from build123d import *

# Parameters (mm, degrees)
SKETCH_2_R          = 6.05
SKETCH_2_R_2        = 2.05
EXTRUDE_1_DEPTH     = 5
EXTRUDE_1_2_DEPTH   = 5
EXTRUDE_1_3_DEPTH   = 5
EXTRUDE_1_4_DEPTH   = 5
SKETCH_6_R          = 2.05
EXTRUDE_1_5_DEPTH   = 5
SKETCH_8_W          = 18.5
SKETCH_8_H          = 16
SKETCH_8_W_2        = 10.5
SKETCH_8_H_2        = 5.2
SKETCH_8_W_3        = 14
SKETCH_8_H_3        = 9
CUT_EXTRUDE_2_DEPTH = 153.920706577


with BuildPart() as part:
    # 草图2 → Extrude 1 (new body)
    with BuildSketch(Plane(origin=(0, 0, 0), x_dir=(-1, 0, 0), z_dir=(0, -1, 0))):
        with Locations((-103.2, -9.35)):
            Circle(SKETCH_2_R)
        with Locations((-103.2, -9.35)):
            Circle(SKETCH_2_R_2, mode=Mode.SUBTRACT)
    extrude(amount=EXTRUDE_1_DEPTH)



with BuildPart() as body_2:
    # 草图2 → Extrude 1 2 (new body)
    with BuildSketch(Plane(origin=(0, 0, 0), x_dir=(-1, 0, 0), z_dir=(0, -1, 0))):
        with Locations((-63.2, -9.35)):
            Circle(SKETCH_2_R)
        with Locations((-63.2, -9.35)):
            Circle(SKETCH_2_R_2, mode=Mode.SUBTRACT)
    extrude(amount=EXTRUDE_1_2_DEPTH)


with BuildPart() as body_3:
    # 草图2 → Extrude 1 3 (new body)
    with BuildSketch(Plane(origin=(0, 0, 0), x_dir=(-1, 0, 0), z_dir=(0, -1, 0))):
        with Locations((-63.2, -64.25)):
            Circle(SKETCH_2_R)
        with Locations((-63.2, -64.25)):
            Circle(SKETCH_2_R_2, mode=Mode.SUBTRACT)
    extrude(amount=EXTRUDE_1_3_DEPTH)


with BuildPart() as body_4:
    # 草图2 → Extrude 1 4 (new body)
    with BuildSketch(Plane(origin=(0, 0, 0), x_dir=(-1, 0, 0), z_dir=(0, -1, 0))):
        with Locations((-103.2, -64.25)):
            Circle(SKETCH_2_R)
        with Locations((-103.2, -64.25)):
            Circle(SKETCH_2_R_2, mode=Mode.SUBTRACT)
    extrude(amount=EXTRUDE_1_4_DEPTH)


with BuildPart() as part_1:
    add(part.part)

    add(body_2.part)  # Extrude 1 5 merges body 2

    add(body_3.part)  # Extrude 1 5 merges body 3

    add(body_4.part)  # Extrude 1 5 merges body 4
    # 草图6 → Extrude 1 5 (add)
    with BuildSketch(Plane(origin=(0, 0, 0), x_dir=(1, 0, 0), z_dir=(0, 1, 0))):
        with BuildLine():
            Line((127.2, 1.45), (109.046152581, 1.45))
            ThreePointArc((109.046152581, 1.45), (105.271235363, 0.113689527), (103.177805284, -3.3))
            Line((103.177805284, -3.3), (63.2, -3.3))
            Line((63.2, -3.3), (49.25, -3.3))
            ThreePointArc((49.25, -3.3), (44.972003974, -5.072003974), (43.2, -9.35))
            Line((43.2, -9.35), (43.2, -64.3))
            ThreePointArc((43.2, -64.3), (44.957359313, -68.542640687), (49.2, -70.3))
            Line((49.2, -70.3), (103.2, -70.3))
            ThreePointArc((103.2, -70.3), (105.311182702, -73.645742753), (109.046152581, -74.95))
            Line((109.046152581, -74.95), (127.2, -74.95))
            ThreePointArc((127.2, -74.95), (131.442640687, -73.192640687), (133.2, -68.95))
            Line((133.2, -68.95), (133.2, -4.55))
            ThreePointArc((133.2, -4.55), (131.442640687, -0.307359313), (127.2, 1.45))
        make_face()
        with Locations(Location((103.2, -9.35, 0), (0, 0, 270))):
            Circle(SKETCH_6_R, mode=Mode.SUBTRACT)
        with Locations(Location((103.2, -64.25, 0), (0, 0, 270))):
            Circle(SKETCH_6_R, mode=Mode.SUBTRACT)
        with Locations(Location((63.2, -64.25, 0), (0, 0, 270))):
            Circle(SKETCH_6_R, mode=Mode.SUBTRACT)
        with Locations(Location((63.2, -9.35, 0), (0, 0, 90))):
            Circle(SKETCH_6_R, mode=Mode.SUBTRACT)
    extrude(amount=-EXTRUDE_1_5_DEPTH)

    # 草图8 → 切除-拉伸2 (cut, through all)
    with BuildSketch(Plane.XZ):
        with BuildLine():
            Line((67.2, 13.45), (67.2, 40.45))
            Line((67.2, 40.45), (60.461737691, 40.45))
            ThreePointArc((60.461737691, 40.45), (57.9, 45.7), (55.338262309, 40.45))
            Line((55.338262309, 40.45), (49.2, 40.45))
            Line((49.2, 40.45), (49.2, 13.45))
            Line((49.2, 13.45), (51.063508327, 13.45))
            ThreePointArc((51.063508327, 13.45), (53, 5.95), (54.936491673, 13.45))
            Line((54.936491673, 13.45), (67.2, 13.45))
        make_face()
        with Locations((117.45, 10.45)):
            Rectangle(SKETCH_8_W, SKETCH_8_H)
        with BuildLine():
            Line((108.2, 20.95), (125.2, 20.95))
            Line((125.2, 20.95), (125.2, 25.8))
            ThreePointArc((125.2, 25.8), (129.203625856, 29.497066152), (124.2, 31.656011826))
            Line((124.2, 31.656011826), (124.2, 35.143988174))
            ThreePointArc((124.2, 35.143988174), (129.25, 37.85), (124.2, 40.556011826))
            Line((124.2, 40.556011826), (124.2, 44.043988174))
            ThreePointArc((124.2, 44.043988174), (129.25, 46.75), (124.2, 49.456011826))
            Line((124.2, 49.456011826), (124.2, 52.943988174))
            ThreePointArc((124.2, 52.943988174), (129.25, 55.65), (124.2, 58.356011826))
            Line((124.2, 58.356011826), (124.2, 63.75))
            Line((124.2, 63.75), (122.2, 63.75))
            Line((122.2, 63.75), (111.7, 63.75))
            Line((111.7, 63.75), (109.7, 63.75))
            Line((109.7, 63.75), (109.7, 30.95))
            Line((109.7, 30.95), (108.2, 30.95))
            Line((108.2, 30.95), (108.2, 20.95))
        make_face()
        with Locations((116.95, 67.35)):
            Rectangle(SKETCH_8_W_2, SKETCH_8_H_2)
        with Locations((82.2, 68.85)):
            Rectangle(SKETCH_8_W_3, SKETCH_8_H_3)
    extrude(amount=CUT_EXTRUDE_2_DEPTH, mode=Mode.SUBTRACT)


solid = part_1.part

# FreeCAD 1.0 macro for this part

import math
import FreeCAD as App
import Part
import Sketcher
from FreeCAD import Vector


def add_polygon(sketch, points):
    """Adds a closed chain of lines whose ends are joined by coincident constraints."""
    first, n = sketch.GeometryCount, len(points)
    for a, b in zip(points, points[1:] + points[:1]):
        sketch.addGeometry(Part.LineSegment(App.Vector(*a, 0), App.Vector(*b, 0)), False)
    for i in range(n):
        sketch.addConstraint(Sketcher.Constraint("Coincident", first + i, 2, first + (i + 1) % n, 1))

doc = App.newDocument("Part")
body = doc.addObject("PartDesign::Body", "Body")

# Sketch on XZ plane
sketch1 = body.newObject("Sketcher::SketchObject", "Sketch")
sketch1.AttachmentSupport = (doc.getObject("XZ_Plane"), [""])
sketch1.MapMode = "FlatFace"
sketch1.addGeometry([
    Part.Circle(Vector(103.2, 9.35, 0), Vector(0, 0, 1), 6.05),
    Part.Circle(Vector(103.2, 9.35, 0), Vector(0, 0, 1), 2.05),
], False)
sketch1.addConstraint([
    Sketcher.Constraint("Coincident", 1, 3, 0, 3),
    Sketcher.Constraint("Diameter", 0, 12.1),
    Sketcher.Constraint("Diameter", 1, 4.1),
    Sketcher.Constraint("DistanceX", -1, 1, 0, 3, 103.2),
    Sketcher.Constraint("DistanceY", -1, 1, 0, 3, 9.35),
])
pad1 = body.newObject("PartDesign::Pad", "Pad")
pad1.Profile = sketch1
pad1.Length = 5
body2 = doc.addObject("PartDesign::Body", "Body001")

# Sketch on XZ plane
sketch2 = body2.newObject("Sketcher::SketchObject", "Sketch001")
sketch2.AttachmentSupport = (doc.getObject("XZ_Plane001"), [""])
sketch2.MapMode = "FlatFace"
sketch2.addGeometry([
    Part.Circle(Vector(63.2, 9.35, 0), Vector(0, 0, 1), 6.05),
    Part.Circle(Vector(63.2, 9.35, 0), Vector(0, 0, 1), 2.05),
], False)
sketch2.addConstraint([
    Sketcher.Constraint("Coincident", 1, 3, 0, 3),
    Sketcher.Constraint("Diameter", 0, 12.1),
    Sketcher.Constraint("Diameter", 1, 4.1),
    Sketcher.Constraint("DistanceX", -1, 1, 0, 3, 63.2),
    Sketcher.Constraint("DistanceY", -1, 1, 0, 3, 9.35),
])
pad2 = body2.newObject("PartDesign::Pad", "Pad001")
pad2.Profile = sketch2
pad2.Length = 5
body3 = doc.addObject("PartDesign::Body", "Body002")

# Sketch on XZ plane
sketch3 = body3.newObject("Sketcher::SketchObject", "Sketch002")
sketch3.AttachmentSupport = (doc.getObject("XZ_Plane002"), [""])
sketch3.MapMode = "FlatFace"
sketch3.addGeometry([
    Part.Circle(Vector(63.2, 64.25, 0), Vector(0, 0, 1), 6.05),
    Part.Circle(Vector(63.2, 64.25, 0), Vector(0, 0, 1), 2.05),
], False)
sketch3.addConstraint([
    Sketcher.Constraint("Coincident", 1, 3, 0, 3),
    Sketcher.Constraint("Diameter", 0, 12.1),
    Sketcher.Constraint("Diameter", 1, 4.1),
    Sketcher.Constraint("DistanceX", -1, 1, 0, 3, 63.2),
    Sketcher.Constraint("DistanceY", -1, 1, 0, 3, 64.25),
])
pad3 = body3.newObject("PartDesign::Pad", "Pad002")
pad3.Profile = sketch3
pad3.Length = 5
body4 = doc.addObject("PartDesign::Body", "Body003")

# Sketch on XZ plane
sketch4 = body4.newObject("Sketcher::SketchObject", "Sketch003")
sketch4.AttachmentSupport = (doc.getObject("XZ_Plane003"), [""])
sketch4.MapMode = "FlatFace"
sketch4.addGeometry([
    Part.Circle(Vector(103.2, 64.25, 0), Vector(0, 0, 1), 6.05),
    Part.Circle(Vector(103.2, 64.25, 0), Vector(0, 0, 1), 2.05),
], False)
sketch4.addConstraint([
    Sketcher.Constraint("Coincident", 1, 3, 0, 3),
    Sketcher.Constraint("Diameter", 0, 12.1),
    Sketcher.Constraint("Diameter", 1, 4.1),
    Sketcher.Constraint("DistanceX", -1, 1, 0, 3, 103.2),
    Sketcher.Constraint("DistanceY", -1, 1, 0, 3, 64.25),
])
pad4 = body4.newObject("PartDesign::Pad", "Pad003")
pad4.Profile = sketch4
pad4.Length = 5
body.AllowCompound = True
doc.recompute()

boolean = body.newObject("PartDesign::Boolean", "Boolean")
boolean.Type = "Fuse"
boolean.addObjects([body2])
doc.recompute()

boolean2 = body.newObject("PartDesign::Boolean", "Boolean001")
boolean2.Type = "Fuse"
boolean2.addObjects([body3])
doc.recompute()

boolean3 = body.newObject("PartDesign::Boolean", "Boolean002")
boolean3.Type = "Fuse"
boolean3.addObjects([body4])

# Sketch on XZ plane
sketch5 = body.newObject("Sketcher::SketchObject", "Sketch004")
sketch5.AttachmentSupport = (doc.getObject("XZ_Plane"), [""])
sketch5.MapMode = "FlatFace"
sketch5.addGeometry([
    Part.LineSegment(Vector(127.2, -1.45, 0), Vector(109.046153, -1.45, 0)),  # 0
    Part.ArcOfCircle(Part.Circle(Vector(109.046153, 4.55, 0), Vector(0, 0, 1), 6), math.radians(-167.975301), math.radians(-90)),  # 1
    Part.LineSegment(Vector(103.177805, 3.3, 0), Vector(49.25, 3.3, 0)),  # 2
    Part.ArcOfCircle(Part.Circle(Vector(49.25, 9.35, 0), Vector(0, 0, 1), 6.05), math.radians(-180), math.radians(-90)),  # 3
    Part.LineSegment(Vector(43.2, 9.35, 0), Vector(43.2, 64.3, 0)),  # 4
    Part.ArcOfCircle(Part.Circle(Vector(49.2, 64.3, 0), Vector(0, 0, 1), 6), math.radians(90), math.radians(180)),  # 5
    Part.LineSegment(Vector(49.2, 70.3, 0), Vector(103.2, 70.3, 0)),  # 6
    Part.ArcOfCircle(Part.Circle(Vector(109.046153, 68.95, 0), Vector(0, 0, 1), 6), math.radians(90), math.radians(166.997122)),  # 7
    Part.LineSegment(Vector(109.046153, 74.95, 0), Vector(127.2, 74.95, 0)),  # 8
    Part.ArcOfCircle(Part.Circle(Vector(127.2, 68.95, 0), Vector(0, 0, 1), 6), math.radians(0), math.radians(90)),  # 9
    Part.LineSegment(Vector(133.2, 68.95, 0), Vector(133.2, 4.55, 0)),  # 10
    Part.ArcOfCircle(Part.Circle(Vector(127.2, 4.55, 0), Vector(0, 0, 1), 6), math.radians(-90), math.radians(0)),  # 11
    Part.Circle(Vector(63.2, 64.25, 0), Vector(0, 0, 1), 2.05),  # 12
    Part.Circle(Vector(103.2, 64.25, 0), Vector(0, 0, 1), 2.05),  # 13
    Part.Circle(Vector(63.2, 9.35, 0), Vector(0, 0, 1), 2.05),  # 14
    Part.Circle(Vector(103.2, 9.35, 0), Vector(0, 0, 1), 2.05),  # 15
], False)
sketch5.addConstraint([
    Sketcher.Constraint("Tangent", 0, 2, 1, 2),
    Sketcher.Constraint("Coincident", 1, 1, 2, 1),
    Sketcher.Constraint("Tangent", 2, 2, 3, 2),
    Sketcher.Constraint("Tangent", 3, 1, 4, 1),
    Sketcher.Constraint("Tangent", 4, 2, 5, 2),
    Sketcher.Constraint("Tangent", 5, 1, 6, 1),
    Sketcher.Constraint("Coincident", 6, 2, 7, 2),
    Sketcher.Constraint("Tangent", 7, 1, 8, 1),
    Sketcher.Constraint("Tangent", 8, 2, 9, 2),
    Sketcher.Constraint("Tangent", 9, 1, 10, 1),
    Sketcher.Constraint("Tangent", 10, 2, 11, 2),
    Sketcher.Constraint("Tangent", 11, 1, 0, 1),
    Sketcher.Constraint("Horizontal", 0),
    Sketcher.Constraint("Horizontal", 2),
    Sketcher.Constraint("Vertical", 4),
    Sketcher.Constraint("Horizontal", 6),
    Sketcher.Constraint("Horizontal", 8),
    Sketcher.Constraint("Vertical", 10),
    Sketcher.Constraint("Equal", 1, 5),
    Sketcher.Constraint("Equal", 5, 7),
    Sketcher.Constraint("Equal", 7, 9),
    Sketcher.Constraint("Equal", 9, 11),
    Sketcher.Constraint("Equal", 12, 13),
    Sketcher.Constraint("Equal", 13, 14),
    Sketcher.Constraint("Equal", 14, 15),
    Sketcher.Constraint("Horizontal", 12, 3, 13, 3),
    Sketcher.Constraint("Horizontal", 3, 3, 14, 3),
    Sketcher.Constraint("Horizontal", 14, 3, 15, 3),
    Sketcher.Constraint("Vertical", 1, 3, 7, 3),
    Sketcher.Constraint("Vertical", 12, 3, 14, 3),
    Sketcher.Constraint("Vertical", 13, 3, 15, 3),
    Sketcher.Constraint("Vertical", 15, 3, 6, 2),
    Sketcher.Constraint("Radius", 1, 6.0),
    Sketcher.Constraint("Diameter", 12, 4.1),
    Sketcher.Constraint("DistanceX", 6, 1, 6, 2, 54.0),
    Sketcher.Constraint("Radius", 3, 6.05),
    Sketcher.Constraint("DistanceY", 10, 2, 10, 1, 64.4),
    Sketcher.Constraint("DistanceX", 5, 3, 9, 3, 78.0),
    Sketcher.Constraint("DistanceX", 5, 3, 12, 3, 14.0),
    Sketcher.Constraint("DistanceY", 4, 1, 4, 2, 54.95),
    Sketcher.Constraint("DistanceX", -1, 1, 5, 3, 49.2),
    Sketcher.Constraint("DistanceY", -1, 1, 5, 3, 64.3),
    Sketcher.Constraint("DistanceY", 1, 3, 3, 3, 4.8),
    Sketcher.Constraint("DistanceY", 12, 3, 7, 3, 4.7),
])
pad5 = body.newObject("PartDesign::Pad", "Pad004")
pad5.Profile = sketch5
pad5.Length = 5

# Sketch on XZ plane
sketch6 = body.newObject("Sketcher::SketchObject", "Sketch005")
sketch6.AttachmentSupport = (doc.getObject("XZ_Plane"), [""])
sketch6.MapMode = "FlatFace"
sketch6.addGeometry(Part.LineSegment(Vector(67.2, 13.45, 0), Vector(67.2, 40.45, 0)), False)  # 0
sketch6.addGeometry(Part.LineSegment(Vector(67.2, 40.45, 0), Vector(60.461738, 40.45, 0)), False)  # 1
sketch6.addGeometry(Part.ArcOfCircle(Part.Circle(Vector(57.9, 42.45, 0), Vector(0, 0, 1), 3.25), math.radians(-37.979872), math.radians(217.979872)), False)  # 2
sketch6.addGeometry(Part.LineSegment(Vector(55.338262, 40.45, 0), Vector(49.2, 40.45, 0)), False)  # 3
sketch6.addGeometry(Part.LineSegment(Vector(49.2, 40.45, 0), Vector(49.2, 13.45, 0)), False)  # 4
sketch6.addGeometry(Part.LineSegment(Vector(49.2, 13.45, 0), Vector(51.063508, 13.45, 0)), False)  # 5
sketch6.addGeometry(Part.ArcOfCircle(Part.Circle(Vector(53, 9.95, 0), Vector(0, 0, 1), 4), math.radians(118.955024), math.radians(421.044976)), False)  # 6
sketch6.addGeometry(Part.LineSegment(Vector(54.936492, 13.45, 0), Vector(67.2, 13.45, 0)), False)  # 7
add_polygon(sketch6, [(108.2, 18.45), (108.2, 2.45), (126.7, 2.45), (126.7, 18.45)])  # lines 8-11
sketch6.addGeometry(Part.LineSegment(Vector(108.2, 20.95, 0), Vector(125.2, 20.95, 0)), False)  # 12
sketch6.addGeometry(Part.LineSegment(Vector(125.2, 20.95, 0), Vector(125.2, 25.8, 0)), False)  # 13
sketch6.addGeometry(Part.ArcOfCircle(Part.Circle(Vector(126, 28.95, 0), Vector(0, 0, 1), 3.25), math.radians(-104.250033), math.radians(123.631277)), False)  # 14
sketch6.addGeometry(Part.LineSegment(Vector(124.2, 31.656012, 0), Vector(124.2, 35.143988, 0)), False)  # 15
sketch6.addGeometry(Part.ArcOfCircle(Part.Circle(Vector(126, 37.85, 0), Vector(0, 0, 1), 3.25), math.radians(-123.631277), math.radians(123.631277)), False)  # 16
sketch6.addGeometry(Part.LineSegment(Vector(124.2, 40.556012, 0), Vector(124.2, 44.043988, 0)), False)  # 17
sketch6.addGeometry(Part.ArcOfCircle(Part.Circle(Vector(126, 46.75, 0), Vector(0, 0, 1), 3.25), math.radians(-123.631277), math.radians(123.631277)), False)  # 18
sketch6.addGeometry(Part.LineSegment(Vector(124.2, 49.456012, 0), Vector(124.2, 52.943988, 0)), False)  # 19
sketch6.addGeometry(Part.ArcOfCircle(Part.Circle(Vector(126, 55.65, 0), Vector(0, 0, 1), 3.25), math.radians(-123.631277), math.radians(123.631277)), False)  # 20
sketch6.addGeometry(Part.LineSegment(Vector(124.2, 58.356012, 0), Vector(124.2, 63.75, 0)), False)  # 21
sketch6.addGeometry(Part.LineSegment(Vector(124.2, 63.75, 0), Vector(109.7, 63.75, 0)), False)  # 22
sketch6.addGeometry(Part.LineSegment(Vector(109.7, 63.75, 0), Vector(109.7, 30.95, 0)), False)  # 23
sketch6.addGeometry(Part.LineSegment(Vector(109.7, 30.95, 0), Vector(108.2, 30.95, 0)), False)  # 24
sketch6.addGeometry(Part.LineSegment(Vector(108.2, 30.95, 0), Vector(108.2, 20.95, 0)), False)  # 25
add_polygon(sketch6, [(111.7, 69.95), (111.7, 64.75), (122.2, 64.75), (122.2, 69.95)])  # lines 26-29
add_polygon(sketch6, [(75.2, 73.35), (75.2, 64.35), (89.2, 64.35), (89.2, 73.35)])  # lines 30-33
sketch6.addConstraint([
    Sketcher.Constraint("Coincident", 0, 2, 1, 1),
    Sketcher.Constraint("Coincident", 1, 2, 2, 1),
    Sketcher.Constraint("Coincident", 2, 2, 3, 1),
    Sketcher.Constraint("Coincident", 3, 2, 4, 1),
    Sketcher.Constraint("Coincident", 4, 2, 5, 1),
    Sketcher.Constraint("Coincident", 5, 2, 6, 1),
    Sketcher.Constraint("Coincident", 6, 2, 7, 1),
    Sketcher.Constraint("Coincident", 7, 2, 0, 1),
    Sketcher.Constraint("Coincident", 12, 2, 13, 1),
    Sketcher.Constraint("Coincident", 13, 2, 14, 1),
    Sketcher.Constraint("Coincident", 14, 2, 15, 1),
    Sketcher.Constraint("Coincident", 15, 2, 16, 1),
    Sketcher.Constraint("Coincident", 16, 2, 17, 1),
    Sketcher.Constraint("Coincident", 17, 2, 18, 1),
    Sketcher.Constraint("Coincident", 18, 2, 19, 1),
    Sketcher.Constraint("Coincident", 19, 2, 20, 1),
    Sketcher.Constraint("Coincident", 20, 2, 21, 1),
    Sketcher.Constraint("Coincident", 21, 2, 22, 1),
    Sketcher.Constraint("Coincident", 22, 2, 23, 1),
    Sketcher.Constraint("Coincident", 23, 2, 24, 1),
    Sketcher.Constraint("Coincident", 24, 2, 25, 1),
    Sketcher.Constraint("Coincident", 25, 2, 12, 1),
    Sketcher.Constraint("Vertical", 0),
    Sketcher.Constraint("Horizontal", 1),
    Sketcher.Constraint("Horizontal", 3),
    Sketcher.Constraint("Vertical", 4),
    Sketcher.Constraint("Horizontal", 5),
    Sketcher.Constraint("Horizontal", 7),
    Sketcher.Constraint("Vertical", 8),
    Sketcher.Constraint("Horizontal", 9),
    Sketcher.Constraint("Vertical", 10),
    Sketcher.Constraint("Horizontal", 11),
    Sketcher.Constraint("Horizontal", 12),
    Sketcher.Constraint("Vertical", 13),
    Sketcher.Constraint("Vertical", 15),
    Sketcher.Constraint("Vertical", 17),
    Sketcher.Constraint("Vertical", 19),
    Sketcher.Constraint("Vertical", 21),
    Sketcher.Constraint("Horizontal", 22),
    Sketcher.Constraint("Vertical", 23),
    Sketcher.Constraint("Horizontal", 24),
    Sketcher.Constraint("Vertical", 25),
    Sketcher.Constraint("Vertical", 26),
    Sketcher.Constraint("Horizontal", 27),
    Sketcher.Constraint("Vertical", 28),
    Sketcher.Constraint("Horizontal", 29),
    Sketcher.Constraint("Vertical", 30),
    Sketcher.Constraint("Horizontal", 31),
    Sketcher.Constraint("Vertical", 32),
    Sketcher.Constraint("Horizontal", 33),
    Sketcher.Constraint("Equal", 2, 14),
    Sketcher.Constraint("Equal", 14, 16),
    Sketcher.Constraint("Equal", 16, 18),
    Sketcher.Constraint("Equal", 18, 20),
    Sketcher.Constraint("Horizontal", 1, 2, 2, 2),
    Sketcher.Constraint("Horizontal", 5, 2, 6, 2),
    Sketcher.Constraint("Vertical", 14, 3, 16, 3),
    Sketcher.Constraint("Vertical", 16, 3, 18, 3),
    Sketcher.Constraint("Vertical", 18, 3, 20, 3),
    Sketcher.Constraint("Vertical", 15, 2, 16, 2),
    Sketcher.Constraint("Vertical", 17, 2, 18, 2),
    Sketcher.Constraint("Vertical", 19, 2, 20, 2),
    Sketcher.Constraint("Vertical", 11, 2, 24, 2),
    Sketcher.Constraint("Equal", 15, 17),
    Sketcher.Constraint("Equal", 17, 19),
    Sketcher.Constraint("Radius", 6, 4.0),
    Sketcher.Constraint("DistanceX", 12, 1, 12, 2, 17.0),
    Sketcher.Constraint("DistanceX", 31, 1, 31, 2, 14.0),
    Sketcher.Constraint("DistanceY", 0, 1, 0, 2, 27.0),
    Sketcher.Constraint("DistanceY", 8, 2, 8, 1, 16.0),
    Sketcher.Constraint("DistanceY", 25, 2, 25, 1, 10.0),
    Sketcher.Constraint("DistanceY", 30, 2, 30, 1, 9.0),
    Sketcher.Constraint("Radius", 2, 3.25),
    Sketcher.Constraint("DistanceX", 9, 1, 9, 2, 18.5),
    Sketcher.Constraint("DistanceX", 22, 2, 22, 1, 14.5),
    Sketcher.Constraint("DistanceX", 24, 2, 24, 1, 1.5),
    Sketcher.Constraint("DistanceX", 27, 1, 27, 2, 10.5),
    Sketcher.Constraint("DistanceY", 23, 2, 23, 1, 32.8),
    Sketcher.Constraint("DistanceY", 26, 2, 26, 1, 5.2),
    Sketcher.Constraint("DistanceX", -1, 1, 6, 3, 53.0),
    Sketcher.Constraint("DistanceX", -1, 1, 14, 3, 126.0),
    Sketcher.Constraint("DistanceY", 6, 3, 14, 3, 19.0),
    Sketcher.Constraint("DistanceY", 0, 2, 2, 3, 2.0),
    Sketcher.Constraint("DistanceX", 3, 2, 0, 2, 18.0),
    Sketcher.Constraint("DistanceX", 7, 2, 8, 2, 41.0),
    Sketcher.Constraint("DistanceY", 8, 2, 7, 2, 11.0),
    Sketcher.Constraint("DistanceY", 12, 2, 14, 3, 8.0),
    Sketcher.Constraint("DistanceY", 18, 3, 21, 2, 17.0),
    Sketcher.Constraint("DistanceX", 22, 2, 26, 2, 2.0),
    Sketcher.Constraint("DistanceY", 22, 2, 26, 2, 1.0),
    Sketcher.Constraint("DistanceX", 0, 2, 30, 2, 8.0),
    Sketcher.Constraint("DistanceY", 13, 1, 13, 2, 4.85),
    Sketcher.Constraint("DistanceX", -1, 1, 2, 3, 57.9),
    Sketcher.Constraint("DistanceY", -1, 1, 13, 2, 25.8),
    Sketcher.Constraint("DistanceY", 6, 3, 2, 3, 32.5),
    Sketcher.Constraint("DistanceY", 0, 2, 30, 2, 23.9),
])
pocket1 = body.newObject("PartDesign::Pocket", "Pocket")
pocket1.Profile = sketch6
pocket1.Type = "ThroughAll"
pocket1.Reversed = True

doc.recompute()
